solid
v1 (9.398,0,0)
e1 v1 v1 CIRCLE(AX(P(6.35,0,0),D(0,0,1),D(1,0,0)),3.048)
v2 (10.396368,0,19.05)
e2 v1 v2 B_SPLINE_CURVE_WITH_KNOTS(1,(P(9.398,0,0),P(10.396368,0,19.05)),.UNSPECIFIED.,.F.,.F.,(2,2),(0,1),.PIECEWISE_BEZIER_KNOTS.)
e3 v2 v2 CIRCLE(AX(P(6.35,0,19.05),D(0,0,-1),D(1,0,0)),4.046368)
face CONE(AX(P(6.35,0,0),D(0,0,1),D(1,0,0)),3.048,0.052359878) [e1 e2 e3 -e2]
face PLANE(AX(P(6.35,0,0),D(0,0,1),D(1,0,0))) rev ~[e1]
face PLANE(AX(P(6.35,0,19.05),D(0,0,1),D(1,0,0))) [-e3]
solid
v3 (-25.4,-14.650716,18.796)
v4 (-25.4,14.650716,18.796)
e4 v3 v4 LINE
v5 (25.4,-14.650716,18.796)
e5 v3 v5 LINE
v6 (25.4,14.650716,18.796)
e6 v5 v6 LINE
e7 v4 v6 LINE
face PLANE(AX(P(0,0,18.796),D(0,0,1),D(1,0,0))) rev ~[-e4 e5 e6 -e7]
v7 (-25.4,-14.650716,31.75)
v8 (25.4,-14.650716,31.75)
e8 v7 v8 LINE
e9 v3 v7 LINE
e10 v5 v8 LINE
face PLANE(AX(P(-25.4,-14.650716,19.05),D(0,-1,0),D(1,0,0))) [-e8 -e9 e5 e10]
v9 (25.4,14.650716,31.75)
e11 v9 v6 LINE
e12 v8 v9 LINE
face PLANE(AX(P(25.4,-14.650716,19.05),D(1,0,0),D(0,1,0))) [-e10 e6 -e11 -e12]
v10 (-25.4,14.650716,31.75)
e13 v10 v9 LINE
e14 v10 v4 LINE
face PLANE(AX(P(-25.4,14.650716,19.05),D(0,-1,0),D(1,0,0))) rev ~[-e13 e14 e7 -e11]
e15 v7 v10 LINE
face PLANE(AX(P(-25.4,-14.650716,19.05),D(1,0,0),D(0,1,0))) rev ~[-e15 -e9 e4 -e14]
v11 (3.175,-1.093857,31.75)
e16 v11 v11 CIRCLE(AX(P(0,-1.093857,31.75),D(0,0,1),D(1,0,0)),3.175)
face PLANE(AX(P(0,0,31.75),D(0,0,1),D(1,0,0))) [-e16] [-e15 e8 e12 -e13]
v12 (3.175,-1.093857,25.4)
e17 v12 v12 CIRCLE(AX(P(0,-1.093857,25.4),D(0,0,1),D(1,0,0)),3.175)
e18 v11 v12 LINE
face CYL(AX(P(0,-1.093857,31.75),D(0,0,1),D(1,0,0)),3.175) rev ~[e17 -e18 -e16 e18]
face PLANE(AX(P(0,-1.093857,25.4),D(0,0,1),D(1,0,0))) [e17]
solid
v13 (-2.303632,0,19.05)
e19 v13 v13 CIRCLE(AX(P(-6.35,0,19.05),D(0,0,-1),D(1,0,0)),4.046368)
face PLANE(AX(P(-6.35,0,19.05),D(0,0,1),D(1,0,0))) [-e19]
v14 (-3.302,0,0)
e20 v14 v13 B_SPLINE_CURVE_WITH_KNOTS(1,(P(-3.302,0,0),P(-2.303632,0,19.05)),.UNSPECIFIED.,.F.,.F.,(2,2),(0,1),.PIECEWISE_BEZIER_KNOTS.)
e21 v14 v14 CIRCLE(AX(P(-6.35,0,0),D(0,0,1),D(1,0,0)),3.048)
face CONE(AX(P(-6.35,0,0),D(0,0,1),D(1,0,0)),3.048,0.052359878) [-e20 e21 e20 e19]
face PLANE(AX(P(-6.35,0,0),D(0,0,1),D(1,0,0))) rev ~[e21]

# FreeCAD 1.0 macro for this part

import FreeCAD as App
import Part
import Sketcher
Q = App.Units.Quantity

doc = App.newDocument("Part")
body = doc.addObject("PartDesign::Body", "Body")

# Sketch on XY plane
sketch1 = body.newObject("Sketcher::SketchObject", "Sketch")
sketch1.AttachmentSupport = (doc.getObject("XY_Plane"), [""])
sketch1.MapMode = "FlatFace"
sketch1.addGeometry(Part.Circle(App.Vector(6.35, 0, 0), App.Vector(0, 0, 1), 3.048), False)
sketch1.addConstraint([
    Sketcher.Constraint("PointOnObject", 0, 3, -1),
    Sketcher.Constraint("Diameter", 0, Q("0.24 in")),
    Sketcher.Constraint("DistanceX", -1, 1, 0, 3, Q("0.25 in")),
])
pad1 = body.newObject("PartDesign::Pad", "Pad")
pad1.Profile = sketch1
pad1.Length = Q("0.75 in")
pad1.TaperAngle = 3
body2 = doc.addObject("PartDesign::Body", "Body001")

# Sketch on XY plane
sketch2 = body2.newObject("Sketcher::SketchObject", "Sketch001")
sketch2.AttachmentSupport = (doc.getObject("XY_Plane001"), [""])
sketch2.MapMode = "FlatFace"
sketch2.addGeometry(Part.Circle(App.Vector(-6.35, 0, 0), App.Vector(0, 0, 1), 3.048), False)
sketch2.addConstraint([
    Sketcher.Constraint("PointOnObject", 0, 3, -1),
    Sketcher.Constraint("Diameter", 0, Q("0.24 in")),
    Sketcher.Constraint("DistanceX", 0, 3, -1, 1, Q("0.25 in")),
])
pad2 = body2.newObject("PartDesign::Pad", "Pad001")
pad2.Profile = sketch2
pad2.Length = Q("0.75 in")
pad2.TaperAngle = 3
body3 = doc.addObject("PartDesign::Body", "Body002")

# Sketch on XY plane
sketch3 = body3.newObject("Sketcher::SketchObject", "Sketch002")
sketch3.AttachmentSupport = (doc.getObject("XY_Plane002"), [""])
sketch3.MapMode = "FlatFace"
sketch3.AttachmentOffset = App.Placement(App.Vector(0, 0, 0.75 * 25.4), App.Rotation())
sketch3.addGeometry([
    Part.LineSegment(App.Vector(-25.4, 14.650716, 0), App.Vector(-25.4, -14.650716, 0)),
    Part.LineSegment(App.Vector(-25.4, -14.650716, 0), App.Vector(25.4, -14.650716, 0)),
    Part.LineSegment(App.Vector(25.4, -14.650716, 0), App.Vector(25.4, 14.650716, 0)),
    Part.LineSegment(App.Vector(25.4, 14.650716, 0), App.Vector(-25.4, 14.650716, 0)),
], False)
sketch3.addConstraint([
    Sketcher.Constraint("Coincident", 0, 2, 1, 1),
    Sketcher.Constraint("Coincident", 1, 2, 2, 1),
    Sketcher.Constraint("Coincident", 2, 2, 3, 1),
    Sketcher.Constraint("Coincident", 3, 2, 0, 1),
    Sketcher.Constraint("Vertical", 0),
    Sketcher.Constraint("Horizontal", 1),
    Sketcher.Constraint("Vertical", 2),
    Sketcher.Constraint("Horizontal", 3),
    Sketcher.Constraint("Symmetric", 0, 2, 2, 2, -1, 1),
    Sketcher.Constraint("DistanceX", 1, 1, 1, 2, Q("2 in")),
    Sketcher.Constraint("DistanceY", 0, 2, -1, 1, Q("0.5767998 in")),
])
pad3 = body3.newObject("PartDesign::Pad", "Pad002")
pad3.Profile = sketch3
pad3.Type = "TwoLengths"
pad3.Length = Q("0.5 in")
pad3.Length2 = Q("0.01 in")

# Sketch on XY plane
sketch4 = body3.newObject("Sketcher::SketchObject", "Sketch003")
sketch4.AttachmentSupport = (doc.getObject("XY_Plane002"), [""])
sketch4.MapMode = "FlatFace"
sketch4.AttachmentOffset = App.Placement(App.Vector(0, 0, 1.25 * 25.4), App.Rotation())
sketch4.addGeometry(Part.Circle(App.Vector(0, -1.093857, 0), App.Vector(0, 0, 1), 3.175), False)
sketch4.addConstraint([
    Sketcher.Constraint("PointOnObject", 0, 3, -2),
    Sketcher.Constraint("Diameter", 0, Q("0.25 in")),
    Sketcher.Constraint("DistanceY", 0, 3, -1, 1, Q("1.093857 mm")),
])
pocket1 = body3.newObject("PartDesign::Pocket", "Pocket")
pocket1.Profile = sketch4
pocket1.Length = Q("0.25 in")

doc.recompute()
